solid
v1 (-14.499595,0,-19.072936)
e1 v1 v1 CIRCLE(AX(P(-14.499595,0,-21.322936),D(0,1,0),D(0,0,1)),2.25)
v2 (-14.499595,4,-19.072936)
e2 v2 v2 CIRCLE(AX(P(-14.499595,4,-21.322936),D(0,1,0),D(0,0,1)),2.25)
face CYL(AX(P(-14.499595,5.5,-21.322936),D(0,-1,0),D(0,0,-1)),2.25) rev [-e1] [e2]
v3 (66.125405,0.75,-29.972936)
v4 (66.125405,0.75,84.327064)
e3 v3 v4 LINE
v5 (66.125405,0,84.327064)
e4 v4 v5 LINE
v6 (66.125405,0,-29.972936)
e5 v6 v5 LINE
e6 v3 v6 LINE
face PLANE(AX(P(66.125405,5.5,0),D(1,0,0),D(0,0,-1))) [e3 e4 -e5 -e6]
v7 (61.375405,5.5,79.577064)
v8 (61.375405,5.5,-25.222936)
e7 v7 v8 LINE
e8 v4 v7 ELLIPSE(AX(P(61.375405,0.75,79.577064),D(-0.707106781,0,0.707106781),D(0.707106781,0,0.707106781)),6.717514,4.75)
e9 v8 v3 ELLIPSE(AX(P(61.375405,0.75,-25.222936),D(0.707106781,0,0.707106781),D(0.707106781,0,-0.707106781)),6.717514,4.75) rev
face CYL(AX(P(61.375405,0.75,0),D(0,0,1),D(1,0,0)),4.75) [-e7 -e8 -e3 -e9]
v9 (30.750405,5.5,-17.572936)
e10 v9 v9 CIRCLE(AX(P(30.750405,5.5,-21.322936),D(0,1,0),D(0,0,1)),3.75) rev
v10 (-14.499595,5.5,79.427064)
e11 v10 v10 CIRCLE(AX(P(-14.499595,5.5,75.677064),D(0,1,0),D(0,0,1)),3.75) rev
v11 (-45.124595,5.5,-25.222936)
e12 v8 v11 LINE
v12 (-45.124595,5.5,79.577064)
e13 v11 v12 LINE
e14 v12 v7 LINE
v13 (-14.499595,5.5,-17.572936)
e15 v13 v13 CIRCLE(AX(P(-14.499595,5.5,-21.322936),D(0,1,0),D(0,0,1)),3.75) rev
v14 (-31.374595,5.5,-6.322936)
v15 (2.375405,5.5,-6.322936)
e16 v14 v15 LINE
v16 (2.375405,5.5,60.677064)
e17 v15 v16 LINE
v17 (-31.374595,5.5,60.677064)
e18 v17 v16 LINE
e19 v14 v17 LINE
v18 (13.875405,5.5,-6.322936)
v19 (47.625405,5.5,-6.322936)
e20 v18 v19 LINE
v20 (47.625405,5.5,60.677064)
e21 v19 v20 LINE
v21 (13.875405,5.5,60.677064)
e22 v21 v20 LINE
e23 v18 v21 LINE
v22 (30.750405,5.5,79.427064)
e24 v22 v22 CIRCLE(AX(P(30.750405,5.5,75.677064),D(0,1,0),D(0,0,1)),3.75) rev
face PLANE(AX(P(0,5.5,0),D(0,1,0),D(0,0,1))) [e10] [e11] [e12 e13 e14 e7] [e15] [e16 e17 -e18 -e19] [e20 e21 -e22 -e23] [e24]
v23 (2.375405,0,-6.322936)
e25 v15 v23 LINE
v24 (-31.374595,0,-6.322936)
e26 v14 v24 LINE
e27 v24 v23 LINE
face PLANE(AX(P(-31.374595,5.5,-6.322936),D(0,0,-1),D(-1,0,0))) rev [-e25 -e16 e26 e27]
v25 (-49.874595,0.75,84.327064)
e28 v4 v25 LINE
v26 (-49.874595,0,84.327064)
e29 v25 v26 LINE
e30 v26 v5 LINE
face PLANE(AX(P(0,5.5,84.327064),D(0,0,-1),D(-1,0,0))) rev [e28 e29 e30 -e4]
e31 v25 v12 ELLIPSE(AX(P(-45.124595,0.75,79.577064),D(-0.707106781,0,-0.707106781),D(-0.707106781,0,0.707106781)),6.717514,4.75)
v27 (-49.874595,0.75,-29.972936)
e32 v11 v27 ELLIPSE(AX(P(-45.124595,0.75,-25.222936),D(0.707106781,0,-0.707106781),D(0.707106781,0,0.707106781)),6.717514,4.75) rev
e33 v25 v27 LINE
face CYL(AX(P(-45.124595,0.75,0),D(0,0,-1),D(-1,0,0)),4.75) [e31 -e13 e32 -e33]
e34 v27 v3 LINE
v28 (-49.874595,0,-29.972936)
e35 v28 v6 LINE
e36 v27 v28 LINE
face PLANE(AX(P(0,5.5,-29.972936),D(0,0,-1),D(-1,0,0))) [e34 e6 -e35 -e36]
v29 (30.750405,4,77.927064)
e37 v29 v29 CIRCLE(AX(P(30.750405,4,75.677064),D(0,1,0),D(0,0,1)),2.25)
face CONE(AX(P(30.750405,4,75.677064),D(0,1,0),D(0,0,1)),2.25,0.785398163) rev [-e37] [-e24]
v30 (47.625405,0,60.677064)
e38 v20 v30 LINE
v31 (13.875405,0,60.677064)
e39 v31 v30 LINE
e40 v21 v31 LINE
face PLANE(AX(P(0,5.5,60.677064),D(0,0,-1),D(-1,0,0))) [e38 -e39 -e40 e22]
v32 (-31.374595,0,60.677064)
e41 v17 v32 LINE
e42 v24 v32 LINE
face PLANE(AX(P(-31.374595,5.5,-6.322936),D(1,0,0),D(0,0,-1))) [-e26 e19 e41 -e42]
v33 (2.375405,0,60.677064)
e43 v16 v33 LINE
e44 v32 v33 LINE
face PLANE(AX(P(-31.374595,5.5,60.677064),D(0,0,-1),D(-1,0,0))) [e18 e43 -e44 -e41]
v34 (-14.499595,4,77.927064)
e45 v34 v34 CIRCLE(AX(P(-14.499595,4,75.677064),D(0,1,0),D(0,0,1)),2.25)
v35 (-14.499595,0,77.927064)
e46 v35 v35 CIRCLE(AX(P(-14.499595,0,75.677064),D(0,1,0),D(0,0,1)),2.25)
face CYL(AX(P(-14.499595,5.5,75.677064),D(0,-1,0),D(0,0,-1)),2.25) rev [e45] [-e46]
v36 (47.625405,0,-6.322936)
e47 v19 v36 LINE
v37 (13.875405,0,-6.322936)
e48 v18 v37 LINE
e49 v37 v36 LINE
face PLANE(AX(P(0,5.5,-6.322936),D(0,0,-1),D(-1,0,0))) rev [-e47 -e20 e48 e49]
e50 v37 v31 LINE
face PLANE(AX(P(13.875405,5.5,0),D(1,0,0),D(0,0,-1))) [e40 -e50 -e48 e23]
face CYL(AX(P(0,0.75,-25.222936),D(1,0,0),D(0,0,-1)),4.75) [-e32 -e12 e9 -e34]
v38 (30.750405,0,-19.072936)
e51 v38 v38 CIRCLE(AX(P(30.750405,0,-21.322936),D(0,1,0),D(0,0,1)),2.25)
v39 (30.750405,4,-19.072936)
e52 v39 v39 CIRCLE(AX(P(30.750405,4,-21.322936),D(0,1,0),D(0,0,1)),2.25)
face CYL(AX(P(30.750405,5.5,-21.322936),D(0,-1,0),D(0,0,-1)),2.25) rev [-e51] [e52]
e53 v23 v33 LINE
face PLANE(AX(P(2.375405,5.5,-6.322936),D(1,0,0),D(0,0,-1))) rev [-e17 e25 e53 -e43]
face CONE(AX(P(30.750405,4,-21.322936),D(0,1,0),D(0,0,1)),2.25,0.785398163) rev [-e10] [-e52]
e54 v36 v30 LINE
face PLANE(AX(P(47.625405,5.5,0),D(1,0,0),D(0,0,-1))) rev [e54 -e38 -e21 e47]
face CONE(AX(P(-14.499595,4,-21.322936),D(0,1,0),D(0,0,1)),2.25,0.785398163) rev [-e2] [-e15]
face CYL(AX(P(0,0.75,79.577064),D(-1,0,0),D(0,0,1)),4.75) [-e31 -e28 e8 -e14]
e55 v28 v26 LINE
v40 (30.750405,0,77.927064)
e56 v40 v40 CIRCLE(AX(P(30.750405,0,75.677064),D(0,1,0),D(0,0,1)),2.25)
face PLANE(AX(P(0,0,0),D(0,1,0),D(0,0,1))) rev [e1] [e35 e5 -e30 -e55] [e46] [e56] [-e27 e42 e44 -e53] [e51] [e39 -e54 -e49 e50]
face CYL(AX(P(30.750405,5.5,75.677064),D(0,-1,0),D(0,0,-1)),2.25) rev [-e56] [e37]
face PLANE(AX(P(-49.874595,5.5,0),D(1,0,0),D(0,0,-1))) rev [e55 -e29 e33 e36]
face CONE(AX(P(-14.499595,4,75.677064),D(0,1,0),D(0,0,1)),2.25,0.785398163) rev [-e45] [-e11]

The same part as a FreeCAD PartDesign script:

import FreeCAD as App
import Part
import Sketcher


def edges_at(feature, points):
    """Names of the edges that pass closest to the given points."""
    edges = feature.Shape.Edges
    near = lambda p: min(range(len(edges)), key=lambda i: edges[i].distToShape(Part.Vertex(*p))[0])
    return sorted({f"Edge{near(p) + 1}" for p in points})

doc = App.newDocument("Part")
params = doc.addObject("Spreadsheet::Sheet", "Params")
for row, (alias, value) in enumerate([
    ("sketch1_diameter", "4.5 mm"),
    ("sketch1_width", "116 mm"),
    ("sketch1_height", "67 mm"),
    ("sketch1_height2", "114.3 mm"),
    ("sketch1_width2", "33.75 mm"),
    ("pad1_length", "5.5 mm"),
    ("fillet_radius", "4.75 mm"),
    ("chamfer_size", "1.5 mm"),
], start=1):
    params.set(f"A{row}", alias)
    params.set(f"B{row}", "=" + value)
    params.setAlias(f"B{row}", alias)

body = doc.addObject("PartDesign::Body", "Body")

sketch1 = body.newObject("Sketcher::SketchObject", "Sketch")
sketch1.AttachmentSupport = (doc.getObject("XZ_Plane"), [""])
sketch1.MapMode = "FlatFace"
sketch1.addGeometry(Part.LineSegment(App.Vector(-49.9, -30, 0), App.Vector(-49.9, 84.3, 0)), False)
sketch1.addGeometry(Part.LineSegment(App.Vector(-49.9, 84.3, 0), App.Vector(66.1, 84.3, 0)), False)
sketch1.addGeometry(Part.LineSegment(App.Vector(66.1, 84.3, 0), App.Vector(66.1, -30, 0)), False)
sketch1.addGeometry(Part.LineSegment(App.Vector(66.1, -30, 0), App.Vector(-49.9, -30, 0)), False)
sketch1.addGeometry(Part.Circle(App.Vector(-14.5, 75.7, 0), App.Vector(0, 0, 1), 2.2), False)
sketch1.addGeometry(Part.Circle(App.Vector(30.8, 75.7, 0), App.Vector(0, 0, 1), 2.2), False)
sketch1.addGeometry(Part.LineSegment(App.Vector(2.4, 60.7, 0), App.Vector(-31.4, 60.7, 0)), False)
sketch1.addGeometry(Part.LineSegment(App.Vector(-31.4, 60.7, 0), App.Vector(-31.4, -6.3, 0)), False)
sketch1.addGeometry(Part.LineSegment(App.Vector(-31.4, -6.3, 0), App.Vector(2.4, -6.3, 0)), False)
sketch1.addGeometry(Part.LineSegment(App.Vector(2.4, -6.3, 0), App.Vector(2.4, 60.7, 0)), False)
sketch1.addGeometry(Part.Circle(App.Vector(-14.5, -21.3, 0), App.Vector(0, 0, 1), 2.2), False)
sketch1.addGeometry(Part.LineSegment(App.Vector(47.6, 60.7, 0), App.Vector(13.9, 60.7, 0)), False)
sketch1.addGeometry(Part.LineSegment(App.Vector(13.9, 60.7, 0), App.Vector(13.9, -6.3, 0)), False)
sketch1.addGeometry(Part.LineSegment(App.Vector(13.9, -6.3, 0), App.Vector(47.6, -6.3, 0)), False)
sketch1.addGeometry(Part.LineSegment(App.Vector(47.6, -6.3, 0), App.Vector(47.6, 60.7, 0)), False)
sketch1.addGeometry(Part.Circle(App.Vector(30.8, -21.3, 0), App.Vector(0, 0, 1), 2.2), False)
sketch1.addConstraint(Sketcher.Constraint("Coincident", 0, 2, 1, 1))
sketch1.addConstraint(Sketcher.Constraint("Coincident", 1, 2, 2, 1))
sketch1.addConstraint(Sketcher.Constraint("Coincident", 2, 2, 3, 1))
sketch1.addConstraint(Sketcher.Constraint("Coincident", 3, 2, 0, 1))
sketch1.addConstraint(Sketcher.Constraint("Coincident", 6, 2, 7, 1))
sketch1.addConstraint(Sketcher.Constraint("Coincident", 7, 2, 8, 1))
sketch1.addConstraint(Sketcher.Constraint("Coincident", 8, 2, 9, 1))
sketch1.addConstraint(Sketcher.Constraint("Coincident", 9, 2, 6, 1))
sketch1.addConstraint(Sketcher.Constraint("Coincident", 11, 2, 12, 1))
sketch1.addConstraint(Sketcher.Constraint("Coincident", 12, 2, 13, 1))
sketch1.addConstraint(Sketcher.Constraint("Coincident", 13, 2, 14, 1))
sketch1.addConstraint(Sketcher.Constraint("Coincident", 14, 2, 11, 1))
sketch1.addConstraint(Sketcher.Constraint("Vertical", 0))
sketch1.addConstraint(Sketcher.Constraint("Horizontal", 1))
sketch1.addConstraint(Sketcher.Constraint("Vertical", 2))
sketch1.addConstraint(Sketcher.Constraint("Horizontal", 3))
sketch1.addConstraint(Sketcher.Constraint("Horizontal", 6))
sketch1.addConstraint(Sketcher.Constraint("Vertical", 7))
sketch1.addConstraint(Sketcher.Constraint("Horizontal", 8))
sketch1.addConstraint(Sketcher.Constraint("Vertical", 9))
sketch1.addConstraint(Sketcher.Constraint("Horizontal", 11))
sketch1.addConstraint(Sketcher.Constraint("Vertical", 12))
sketch1.addConstraint(Sketcher.Constraint("Horizontal", 13))
sketch1.addConstraint(Sketcher.Constraint("Vertical", 14))
sketch1.addConstraint(Sketcher.Constraint("Equal", 4, 5))
sketch1.addConstraint(Sketcher.Constraint("Equal", 5, 10))
sketch1.addConstraint(Sketcher.Constraint("Equal", 10, 15))
sketch1.addConstraint(Sketcher.Constraint("Horizontal", 4, 3, 5, 3))
sketch1.addConstraint(Sketcher.Constraint("Horizontal", 10, 3, 15, 3))
sketch1.addConstraint(Sketcher.Constraint("Horizontal", 9, 2, 11, 2))
sketch1.addConstraint(Sketcher.Constraint("Horizontal", 8, 2, 12, 2))
sketch1.addConstraint(Sketcher.Constraint("Vertical", 4, 3, 10, 3))
sketch1.addConstraint(Sketcher.Constraint("Vertical", 5, 3, 15, 3))
sketch1.addConstraint(Sketcher.Constraint("Equal", 8, 11))
sketch1.addConstraint(Sketcher.Constraint("Diameter", 4, 4.5))
sketch1.addConstraint(Sketcher.Constraint("DistanceX", 1, 1, 1, 2, 116.0))
sketch1.addConstraint(Sketcher.Constraint("DistanceY", 7, 2, 7, 1, 67.0))
sketch1.addConstraint(Sketcher.Constraint("DistanceY", 0, 1, 0, 2, 114.3))
sketch1.addConstraint(Sketcher.Constraint("DistanceY", 10, 3, 4, 3, 97.0))
sketch1.addConstraint(Sketcher.Constraint("DistanceY", 6, 2, 4, 3, 15.0))
sketch1.addConstraint(Sketcher.Constraint("DistanceX", 6, 2, 6, 1, 33.75))
sketch1.addConstraint(Sketcher.Constraint("DistanceX", 0, 2, 6, 2, 18.5))
sketch1.addConstraint(Sketcher.Constraint("DistanceX", 9, 2, 11, 2, 11.5))
sketch1.addConstraint(Sketcher.Constraint("DistanceX", 4, 3, 5, 3, 45.25))
sketch1.addConstraint(Sketcher.Constraint("DistanceY", 4, 3, 0, 2, 8.65))
sketch1.addConstraint(Sketcher.Constraint("DistanceX", 0, 2, 4, 3, 35.375))
sketch1.addConstraint(Sketcher.Constraint("DistanceX", 4, 3, -1, 1, 14.499595))
sketch1.addConstraint(Sketcher.Constraint("DistanceY", -1, 1, 4, 3, 75.677064))
sketch1.setExpression("Constraints[34]", "Params.sketch1_diameter")
sketch1.setExpression("Constraints[35]", "Params.sketch1_width")
sketch1.setExpression("Constraints[36]", "Params.sketch1_height")
sketch1.setExpression("Constraints[37]", "Params.sketch1_height2")
sketch1.setExpression("Constraints[40]", "Params.sketch1_width2")
pad1 = body.newObject("PartDesign::Pad", "Pad")
pad1.Profile = sketch1
pad1.setExpression("Length", "Params.pad1_length")
pad1.Reversed = True
doc.recompute()

fillet = body.newObject("PartDesign::Fillet", "Fillet")
fillet.Base = (pad1, edges_at(pad1, [
    (66.125, 5.5, 27.177),
    (8.125, 5.5, -29.973),
    (-49.875, 5.5, 27.177),
    (8.125, 5.5, 84.327),
]))
fillet.setExpression("Radius", "Params.fillet_radius")
doc.recompute()

chamfer = body.newObject("PartDesign::Chamfer", "Chamfer")
chamfer.Base = (fillet, edges_at(fillet, [
    (28.5, 5.5, 75.677),
    (-16.75, 5.5, 75.677),
    (-16.75, 5.5, -21.323),
    (28.5, 5.5, -21.323),
]))
chamfer.setExpression("Size", "Params.chamfer_size")

doc.recompute()
